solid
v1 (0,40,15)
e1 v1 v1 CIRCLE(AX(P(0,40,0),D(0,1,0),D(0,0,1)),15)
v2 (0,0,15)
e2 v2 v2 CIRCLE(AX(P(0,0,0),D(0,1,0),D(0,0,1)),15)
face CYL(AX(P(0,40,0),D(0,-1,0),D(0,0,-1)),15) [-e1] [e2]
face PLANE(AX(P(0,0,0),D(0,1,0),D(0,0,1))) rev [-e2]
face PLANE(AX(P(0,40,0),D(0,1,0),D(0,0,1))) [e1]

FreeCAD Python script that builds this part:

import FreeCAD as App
import Part
import Sketcher

doc = App.newDocument("Part")
params = doc.addObject("Spreadsheet::Sheet", "Params")
for row, (alias, value) in enumerate([
    ("sketch1_diameter", "30 mm"),
    ("pad1_length", "40 mm"),
], start=1):
    params.set(f"A{row}", alias)
    params.set(f"B{row}", "=" + value)
    params.setAlias(f"B{row}", alias)

body = doc.addObject("PartDesign::Body", "Body")

sketch1 = body.newObject("Sketcher::SketchObject", "Sketch")
sketch1.AttachmentSupport = (doc.getObject("XZ_Plane"), [""])
sketch1.MapMode = "FlatFace"
sketch1.addGeometry(Part.Circle(App.Vector(0, 0, 0), App.Vector(0, 0, 1), 15), False)
sketch1.addConstraint([
    Sketcher.Constraint("Coincident", 0, 3, -1, 1),
    Sketcher.Constraint("Diameter", 0, 30.0),
])
sketch1.setExpression("Constraints[1]", "Params.sketch1_diameter")
pad1 = body.newObject("PartDesign::Pad", "Pad")
pad1.Profile = sketch1
pad1.setExpression("Length", "Params.pad1_length")
pad1.Reversed = True

doc.recompute()
